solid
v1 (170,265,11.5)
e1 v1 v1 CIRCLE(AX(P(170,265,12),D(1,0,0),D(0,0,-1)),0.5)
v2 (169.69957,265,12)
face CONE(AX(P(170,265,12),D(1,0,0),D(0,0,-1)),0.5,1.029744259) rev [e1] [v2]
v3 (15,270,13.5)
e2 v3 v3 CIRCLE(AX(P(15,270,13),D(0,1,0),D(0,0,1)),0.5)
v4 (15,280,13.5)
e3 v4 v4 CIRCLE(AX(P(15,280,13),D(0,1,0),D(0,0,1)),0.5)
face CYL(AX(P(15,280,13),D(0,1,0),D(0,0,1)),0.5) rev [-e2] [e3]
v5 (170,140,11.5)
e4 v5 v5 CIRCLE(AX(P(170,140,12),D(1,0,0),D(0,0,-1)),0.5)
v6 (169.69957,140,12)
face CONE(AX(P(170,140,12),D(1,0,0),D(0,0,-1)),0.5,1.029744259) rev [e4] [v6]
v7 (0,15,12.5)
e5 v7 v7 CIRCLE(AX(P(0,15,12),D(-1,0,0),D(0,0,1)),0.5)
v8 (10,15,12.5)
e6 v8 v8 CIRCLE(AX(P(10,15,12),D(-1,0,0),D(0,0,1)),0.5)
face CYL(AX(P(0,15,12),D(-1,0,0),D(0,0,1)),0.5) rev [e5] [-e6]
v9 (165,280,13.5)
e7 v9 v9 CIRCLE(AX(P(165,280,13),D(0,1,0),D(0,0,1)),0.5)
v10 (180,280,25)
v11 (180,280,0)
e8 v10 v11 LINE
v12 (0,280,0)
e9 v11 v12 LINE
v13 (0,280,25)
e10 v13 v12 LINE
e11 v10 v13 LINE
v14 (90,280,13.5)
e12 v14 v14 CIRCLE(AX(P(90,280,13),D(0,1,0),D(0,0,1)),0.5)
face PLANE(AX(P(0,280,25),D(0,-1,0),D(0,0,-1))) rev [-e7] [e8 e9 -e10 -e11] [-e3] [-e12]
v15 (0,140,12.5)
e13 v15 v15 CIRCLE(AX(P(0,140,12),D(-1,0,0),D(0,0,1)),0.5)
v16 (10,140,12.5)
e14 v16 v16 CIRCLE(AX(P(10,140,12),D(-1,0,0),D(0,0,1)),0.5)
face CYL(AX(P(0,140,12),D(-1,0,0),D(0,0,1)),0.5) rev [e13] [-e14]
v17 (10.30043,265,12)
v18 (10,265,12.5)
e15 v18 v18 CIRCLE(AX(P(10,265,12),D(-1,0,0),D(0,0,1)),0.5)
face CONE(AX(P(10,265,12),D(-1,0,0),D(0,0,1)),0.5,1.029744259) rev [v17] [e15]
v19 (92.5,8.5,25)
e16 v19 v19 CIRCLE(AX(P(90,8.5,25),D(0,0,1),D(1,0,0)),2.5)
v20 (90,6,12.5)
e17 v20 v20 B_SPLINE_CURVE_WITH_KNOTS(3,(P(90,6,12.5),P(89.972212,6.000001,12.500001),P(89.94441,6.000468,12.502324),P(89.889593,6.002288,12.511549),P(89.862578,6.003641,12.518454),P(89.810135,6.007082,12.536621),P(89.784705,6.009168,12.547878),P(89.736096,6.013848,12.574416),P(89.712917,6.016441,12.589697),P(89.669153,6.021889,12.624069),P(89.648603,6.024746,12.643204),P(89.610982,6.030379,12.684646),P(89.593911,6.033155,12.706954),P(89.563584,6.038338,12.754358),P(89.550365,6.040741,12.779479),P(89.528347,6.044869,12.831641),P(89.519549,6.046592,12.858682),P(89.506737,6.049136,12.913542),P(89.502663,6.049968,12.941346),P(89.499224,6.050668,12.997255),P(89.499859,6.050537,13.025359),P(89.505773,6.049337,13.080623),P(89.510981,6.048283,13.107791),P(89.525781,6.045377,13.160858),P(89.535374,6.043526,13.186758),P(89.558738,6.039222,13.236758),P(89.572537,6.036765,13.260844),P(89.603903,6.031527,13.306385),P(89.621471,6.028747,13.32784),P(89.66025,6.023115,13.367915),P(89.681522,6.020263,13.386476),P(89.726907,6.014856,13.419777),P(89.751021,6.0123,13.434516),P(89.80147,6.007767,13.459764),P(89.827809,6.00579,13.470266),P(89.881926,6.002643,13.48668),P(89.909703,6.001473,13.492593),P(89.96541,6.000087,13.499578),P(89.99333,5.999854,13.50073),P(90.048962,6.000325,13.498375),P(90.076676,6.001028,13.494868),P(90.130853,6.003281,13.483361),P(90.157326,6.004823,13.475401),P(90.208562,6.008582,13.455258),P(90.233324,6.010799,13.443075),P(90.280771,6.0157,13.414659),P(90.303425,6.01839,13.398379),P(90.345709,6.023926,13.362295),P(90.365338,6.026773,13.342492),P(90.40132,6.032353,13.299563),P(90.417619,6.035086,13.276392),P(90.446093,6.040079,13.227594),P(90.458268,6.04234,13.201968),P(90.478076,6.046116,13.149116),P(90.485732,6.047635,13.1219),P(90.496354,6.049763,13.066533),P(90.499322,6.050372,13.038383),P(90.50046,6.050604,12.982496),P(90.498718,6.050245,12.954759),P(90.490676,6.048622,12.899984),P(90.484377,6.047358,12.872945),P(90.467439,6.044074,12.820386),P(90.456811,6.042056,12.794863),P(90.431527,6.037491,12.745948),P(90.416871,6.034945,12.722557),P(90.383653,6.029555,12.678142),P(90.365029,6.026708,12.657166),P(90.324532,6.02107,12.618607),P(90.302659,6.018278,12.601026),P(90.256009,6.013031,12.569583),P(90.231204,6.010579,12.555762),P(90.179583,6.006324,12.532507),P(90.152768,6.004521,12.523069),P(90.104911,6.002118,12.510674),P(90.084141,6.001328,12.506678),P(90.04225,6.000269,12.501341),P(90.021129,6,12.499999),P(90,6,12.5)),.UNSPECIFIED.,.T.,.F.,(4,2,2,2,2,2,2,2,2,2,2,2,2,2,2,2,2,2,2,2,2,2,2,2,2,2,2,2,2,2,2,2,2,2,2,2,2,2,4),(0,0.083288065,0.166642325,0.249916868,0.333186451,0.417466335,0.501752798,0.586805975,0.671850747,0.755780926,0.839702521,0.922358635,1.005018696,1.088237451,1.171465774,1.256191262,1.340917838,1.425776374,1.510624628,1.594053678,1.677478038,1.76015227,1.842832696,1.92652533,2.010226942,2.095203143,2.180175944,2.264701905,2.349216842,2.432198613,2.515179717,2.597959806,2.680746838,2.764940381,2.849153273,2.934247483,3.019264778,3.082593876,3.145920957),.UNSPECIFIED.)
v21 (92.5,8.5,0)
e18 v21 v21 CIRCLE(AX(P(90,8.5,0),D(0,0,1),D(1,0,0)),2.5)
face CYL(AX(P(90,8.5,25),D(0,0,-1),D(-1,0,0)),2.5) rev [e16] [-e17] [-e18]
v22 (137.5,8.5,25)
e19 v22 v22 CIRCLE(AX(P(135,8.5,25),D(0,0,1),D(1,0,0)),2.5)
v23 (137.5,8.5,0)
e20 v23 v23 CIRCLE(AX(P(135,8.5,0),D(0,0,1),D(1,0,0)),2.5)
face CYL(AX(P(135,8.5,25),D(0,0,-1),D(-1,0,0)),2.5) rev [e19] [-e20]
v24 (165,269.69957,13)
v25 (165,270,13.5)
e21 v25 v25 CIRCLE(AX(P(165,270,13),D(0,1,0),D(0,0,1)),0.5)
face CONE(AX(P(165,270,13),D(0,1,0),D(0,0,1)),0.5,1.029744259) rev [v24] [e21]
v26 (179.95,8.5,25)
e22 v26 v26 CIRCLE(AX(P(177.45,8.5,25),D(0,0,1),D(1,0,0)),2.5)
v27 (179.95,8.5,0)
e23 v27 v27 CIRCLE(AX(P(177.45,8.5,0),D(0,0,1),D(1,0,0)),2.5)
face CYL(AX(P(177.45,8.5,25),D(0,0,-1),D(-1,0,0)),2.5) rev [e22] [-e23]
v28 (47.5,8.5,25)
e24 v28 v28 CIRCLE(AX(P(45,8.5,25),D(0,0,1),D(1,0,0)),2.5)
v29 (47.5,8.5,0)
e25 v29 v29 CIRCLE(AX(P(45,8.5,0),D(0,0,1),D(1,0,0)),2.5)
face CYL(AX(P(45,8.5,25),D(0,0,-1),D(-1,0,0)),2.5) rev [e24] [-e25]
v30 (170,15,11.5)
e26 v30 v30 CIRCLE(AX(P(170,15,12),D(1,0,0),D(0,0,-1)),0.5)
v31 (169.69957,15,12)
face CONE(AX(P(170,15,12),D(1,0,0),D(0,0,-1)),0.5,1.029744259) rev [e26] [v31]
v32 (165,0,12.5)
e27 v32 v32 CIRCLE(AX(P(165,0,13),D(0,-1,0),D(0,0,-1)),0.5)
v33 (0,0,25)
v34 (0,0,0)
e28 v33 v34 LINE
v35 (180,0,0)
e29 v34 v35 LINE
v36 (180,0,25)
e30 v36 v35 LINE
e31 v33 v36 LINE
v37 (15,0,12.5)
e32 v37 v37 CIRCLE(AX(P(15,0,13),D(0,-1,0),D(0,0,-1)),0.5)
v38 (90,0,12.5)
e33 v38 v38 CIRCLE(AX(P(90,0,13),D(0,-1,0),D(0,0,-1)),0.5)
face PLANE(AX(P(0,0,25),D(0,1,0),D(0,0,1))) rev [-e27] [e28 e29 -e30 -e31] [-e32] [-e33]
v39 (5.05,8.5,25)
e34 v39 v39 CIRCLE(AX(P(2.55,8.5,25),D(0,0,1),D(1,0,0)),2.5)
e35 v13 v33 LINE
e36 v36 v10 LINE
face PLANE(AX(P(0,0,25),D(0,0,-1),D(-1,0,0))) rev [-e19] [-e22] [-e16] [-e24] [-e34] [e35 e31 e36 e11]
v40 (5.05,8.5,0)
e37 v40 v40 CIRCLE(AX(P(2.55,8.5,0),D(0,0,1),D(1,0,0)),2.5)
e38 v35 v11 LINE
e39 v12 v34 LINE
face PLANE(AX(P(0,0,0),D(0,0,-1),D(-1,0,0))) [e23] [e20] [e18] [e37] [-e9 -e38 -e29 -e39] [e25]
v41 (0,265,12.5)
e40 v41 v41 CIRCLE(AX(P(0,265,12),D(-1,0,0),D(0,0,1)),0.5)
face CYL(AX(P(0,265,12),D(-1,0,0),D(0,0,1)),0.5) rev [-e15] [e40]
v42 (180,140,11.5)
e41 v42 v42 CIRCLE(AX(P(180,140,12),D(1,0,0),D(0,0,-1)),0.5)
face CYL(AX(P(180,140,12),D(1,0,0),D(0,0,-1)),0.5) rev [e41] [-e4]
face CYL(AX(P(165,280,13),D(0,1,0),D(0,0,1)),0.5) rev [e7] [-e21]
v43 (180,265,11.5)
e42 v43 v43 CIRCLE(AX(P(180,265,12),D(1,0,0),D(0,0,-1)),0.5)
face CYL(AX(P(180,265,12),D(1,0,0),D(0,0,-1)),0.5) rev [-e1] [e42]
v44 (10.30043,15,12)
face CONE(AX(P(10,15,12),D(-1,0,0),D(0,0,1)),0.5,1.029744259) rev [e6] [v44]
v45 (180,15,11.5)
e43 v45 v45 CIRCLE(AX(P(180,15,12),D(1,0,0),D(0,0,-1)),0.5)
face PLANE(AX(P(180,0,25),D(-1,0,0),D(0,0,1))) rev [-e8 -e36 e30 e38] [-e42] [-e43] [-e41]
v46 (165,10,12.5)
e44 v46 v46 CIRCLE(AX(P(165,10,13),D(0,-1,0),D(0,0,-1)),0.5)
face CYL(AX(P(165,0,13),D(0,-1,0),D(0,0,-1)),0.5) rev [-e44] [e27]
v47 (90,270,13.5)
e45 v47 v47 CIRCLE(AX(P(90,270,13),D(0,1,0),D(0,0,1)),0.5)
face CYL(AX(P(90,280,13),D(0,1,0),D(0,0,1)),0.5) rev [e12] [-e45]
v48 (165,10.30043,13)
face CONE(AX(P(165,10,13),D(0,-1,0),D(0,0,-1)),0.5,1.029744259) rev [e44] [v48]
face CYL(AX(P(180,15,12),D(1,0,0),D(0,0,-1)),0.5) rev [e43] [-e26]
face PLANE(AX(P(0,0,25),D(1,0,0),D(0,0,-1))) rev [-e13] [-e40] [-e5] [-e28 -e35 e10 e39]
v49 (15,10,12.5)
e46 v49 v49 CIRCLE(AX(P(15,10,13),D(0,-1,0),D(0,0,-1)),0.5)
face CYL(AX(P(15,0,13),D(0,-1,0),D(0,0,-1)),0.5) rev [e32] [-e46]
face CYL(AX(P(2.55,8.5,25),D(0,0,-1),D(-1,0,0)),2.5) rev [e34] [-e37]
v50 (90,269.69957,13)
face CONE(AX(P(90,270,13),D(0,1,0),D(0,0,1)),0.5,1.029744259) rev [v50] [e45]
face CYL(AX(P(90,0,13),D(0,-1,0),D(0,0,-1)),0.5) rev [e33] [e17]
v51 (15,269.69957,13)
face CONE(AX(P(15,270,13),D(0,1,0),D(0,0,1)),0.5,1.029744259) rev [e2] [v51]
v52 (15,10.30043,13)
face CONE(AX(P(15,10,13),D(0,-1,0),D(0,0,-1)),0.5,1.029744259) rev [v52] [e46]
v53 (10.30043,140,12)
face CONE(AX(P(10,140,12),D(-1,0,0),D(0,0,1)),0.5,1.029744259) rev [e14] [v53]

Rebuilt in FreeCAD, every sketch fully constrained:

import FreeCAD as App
import Part
import Sketcher
from FreeCAD import Vector


def add_polygon(sketch, points):
    """Adds a closed chain of lines whose ends are joined by coincident constraints."""
    first, n = sketch.GeometryCount, len(points)
    for a, b in zip(points, points[1:] + points[:1]):
        sketch.addGeometry(Part.LineSegment(App.Vector(*a, 0), App.Vector(*b, 0)), False)
    for i in range(n):
        sketch.addConstraint(Sketcher.Constraint("Coincident", first + i, 2, first + (i + 1) % n, 1))

doc = App.newDocument("Part")
body = doc.addObject("PartDesign::Body", "Body")

# Sketch on XY plane
sketch1 = body.newObject("Sketcher::SketchObject", "Sketch")
sketch1.AttachmentSupport = (doc.getObject("XY_Plane"), [""])
sketch1.MapMode = "FlatFace"
add_polygon(sketch1, [(0, 280), (0, 0), (180, 0), (180, 280)])  # lines 0-3
sketch1.addGeometry(Part.Circle(Vector(2.5, 8.5, 0), Vector(0, 0, 1), 2.5), False)  # 4
sketch1.addGeometry(Part.Circle(Vector(45, 8.5, 0), Vector(0, 0, 1), 2.5), False)  # 5
sketch1.addGeometry(Part.Circle(Vector(90, 8.5, 0), Vector(0, 0, 1), 2.5), False)  # 6
sketch1.addGeometry(Part.Circle(Vector(135, 8.5, 0), Vector(0, 0, 1), 2.5), False)  # 7
sketch1.addGeometry(Part.Circle(Vector(177.4, 8.5, 0), Vector(0, 0, 1), 2.5), False)  # 8
sketch1.addConstraint([
    Sketcher.Constraint("Vertical", 0),
    Sketcher.Constraint("Horizontal", 1),
    Sketcher.Constraint("Vertical", 2),
    Sketcher.Constraint("Horizontal", 3),
    Sketcher.Constraint("Coincident", 0, 2, -1, 1),
    Sketcher.Constraint("Equal", 4, 5),
    Sketcher.Constraint("Equal", 5, 6),
    Sketcher.Constraint("Equal", 6, 7),
    Sketcher.Constraint("Equal", 7, 8),
    Sketcher.Constraint("Horizontal", 4, 3, 5, 3),
    Sketcher.Constraint("Horizontal", 5, 3, 6, 3),
    Sketcher.Constraint("Horizontal", 6, 3, 7, 3),
    Sketcher.Constraint("Horizontal", 7, 3, 8, 3),
    Sketcher.Constraint("Diameter", 4, 5.0),
    Sketcher.Constraint("DistanceX", 1, 1, 1, 2, 180.0),
    Sketcher.Constraint("DistanceY", 0, 2, 0, 1, 280.0),
    Sketcher.Constraint("DistanceX", -1, 1, 5, 3, 45.0),
    Sketcher.Constraint("DistanceX", -1, 1, 6, 3, 90.0),
    Sketcher.Constraint("DistanceX", -1, 1, 7, 3, 135.0),
    Sketcher.Constraint("DistanceY", -1, 1, 4, 3, 8.5),
    Sketcher.Constraint("DistanceX", 4, 3, 8, 3, 174.9),
    Sketcher.Constraint("DistanceX", -1, 1, 4, 3, 2.55),
])
pad1 = body.newObject("PartDesign::Pad", "Pad")
pad1.Profile = sketch1
pad1.Length = 25

# Sketch on YZ plane
sketch2 = body.newObject("Sketcher::SketchObject", "Sketch001")
sketch2.AttachmentSupport = (doc.getObject("YZ_Plane"), [""])
sketch2.MapMode = "FlatFace"
sketch2.addGeometry([
    Part.Circle(Vector(265, 12, 0), Vector(0, 0, 1), 0.5),
    Part.Circle(Vector(140, 12, 0), Vector(0, 0, 1), 0.5),
    Part.Circle(Vector(15, 12, 0), Vector(0, 0, 1), 0.5),
], False)
sketch2.addConstraint([
    Sketcher.Constraint("Equal", 0, 1),
    Sketcher.Constraint("Equal", 1, 2),
    Sketcher.Constraint("Horizontal", 0, 3, 1, 3),
    Sketcher.Constraint("Horizontal", 1, 3, 2, 3),
    Sketcher.Constraint("Diameter", 0, 1.0),
    Sketcher.Constraint("DistanceX", -1, 1, 0, 3, 265.0),
    Sketcher.Constraint("DistanceY", -1, 1, 0, 3, 12.0),
    Sketcher.Constraint("DistanceX", -1, 1, 1, 3, 140.0),
    Sketcher.Constraint("DistanceX", -1, 1, 2, 3, 15.0),
])
doc.recompute()
hole = body.newObject("PartDesign::Hole", "Hole")
hole.Profile = sketch2
hole.ThreadType = "None"
hole.Diameter = 1
hole.DepthType = "Dimension"
hole.Depth = 10
hole.DrillPoint = "Angled"
hole.DrillPointAngle = 118
hole.Reversed = True

# Sketch on YZ plane
sketch3 = body.newObject("Sketcher::SketchObject", "Sketch002")
sketch3.AttachmentSupport = (doc.getObject("YZ_Plane"), [""])
sketch3.MapMode = "FlatFace"
sketch3.AttachmentOffset = App.Placement(Vector(0, 0, 180), App.Rotation())
sketch3.addGeometry([
    Part.Circle(Vector(15, 12, 0), Vector(0, 0, 1), 0.5),
    Part.Circle(Vector(140, 12, 0), Vector(0, 0, 1), 0.5),
    Part.Circle(Vector(265, 12, 0), Vector(0, 0, 1), 0.5),
], False)
sketch3.addConstraint([
    Sketcher.Constraint("Equal", 0, 1),
    Sketcher.Constraint("Equal", 1, 2),
    Sketcher.Constraint("Horizontal", 0, 3, 1, 3),
    Sketcher.Constraint("Horizontal", 1, 3, 2, 3),
    Sketcher.Constraint("Diameter", 0, 1.0),
    Sketcher.Constraint("DistanceX", -1, 1, 0, 3, 15.0),
    Sketcher.Constraint("DistanceY", -1, 1, 0, 3, 12.0),
    Sketcher.Constraint("DistanceX", -1, 1, 1, 3, 140.0),
    Sketcher.Constraint("DistanceX", -1, 1, 2, 3, 265.0),
])
doc.recompute()
hole2 = body.newObject("PartDesign::Hole", "Hole001")
hole2.Profile = sketch3
hole2.ThreadType = "None"
hole2.Diameter = 1
hole2.DepthType = "Dimension"
hole2.Depth = 10
hole2.DrillPoint = "Angled"
hole2.DrillPointAngle = 118

# Sketch on XZ plane
sketch4 = body.newObject("Sketcher::SketchObject", "Sketch003")
sketch4.AttachmentSupport = (doc.getObject("XZ_Plane"), [""])
sketch4.MapMode = "FlatFace"
sketch4.addGeometry([
    Part.Circle(Vector(15, 13, 0), Vector(0, 0, 1), 0.5),
    Part.Circle(Vector(90, 13, 0), Vector(0, 0, 1), 0.5),
    Part.Circle(Vector(165, 13, 0), Vector(0, 0, 1), 0.5),
], False)
sketch4.addConstraint([
    Sketcher.Constraint("Equal", 0, 1),
    Sketcher.Constraint("Equal", 1, 2),
    Sketcher.Constraint("Horizontal", 0, 3, 1, 3),
    Sketcher.Constraint("Horizontal", 1, 3, 2, 3),
    Sketcher.Constraint("Diameter", 0, 1.0),
    Sketcher.Constraint("DistanceX", -1, 1, 0, 3, 15.0),
    Sketcher.Constraint("DistanceY", -1, 1, 0, 3, 13.0),
    Sketcher.Constraint("DistanceX", -1, 1, 1, 3, 90.0),
    Sketcher.Constraint("DistanceX", -1, 1, 2, 3, 165.0),
])
doc.recompute()
hole3 = body.newObject("PartDesign::Hole", "Hole002")
hole3.Profile = sketch4
hole3.ThreadType = "None"
hole3.Diameter = 1
hole3.DepthType = "Dimension"
hole3.Depth = 10
hole3.DrillPoint = "Angled"
hole3.DrillPointAngle = 118

# Sketch on XZ plane
sketch5 = body.newObject("Sketcher::SketchObject", "Sketch004")
sketch5.AttachmentSupport = (doc.getObject("XZ_Plane"), [""])
sketch5.MapMode = "FlatFace"
sketch5.AttachmentOffset = App.Placement(Vector(0, 0, -280), App.Rotation())
sketch5.addGeometry([
    Part.Circle(Vector(15, 13, 0), Vector(0, 0, 1), 0.5),
    Part.Circle(Vector(90, 13, 0), Vector(0, 0, 1), 0.5),
    Part.Circle(Vector(165, 13, 0), Vector(0, 0, 1), 0.5),
], False)
sketch5.addConstraint([
    Sketcher.Constraint("Equal", 0, 1),
    Sketcher.Constraint("Equal", 1, 2),
    Sketcher.Constraint("Horizontal", 0, 3, 1, 3),
    Sketcher.Constraint("Horizontal", 1, 3, 2, 3),
    Sketcher.Constraint("Diameter", 0, 1.0),
    Sketcher.Constraint("DistanceX", -1, 1, 0, 3, 15.0),
    Sketcher.Constraint("DistanceY", -1, 1, 0, 3, 13.0),
    Sketcher.Constraint("DistanceX", -1, 1, 1, 3, 90.0),
    Sketcher.Constraint("DistanceX", -1, 1, 2, 3, 165.0),
])
doc.recompute()
hole4 = body.newObject("PartDesign::Hole", "Hole003")
hole4.Profile = sketch5
hole4.ThreadType = "None"
hole4.Diameter = 1
hole4.DepthType = "Dimension"
hole4.Depth = 10
hole4.DrillPoint = "Angled"
hole4.DrillPointAngle = 118
hole4.Reversed = True

doc.recompute()
